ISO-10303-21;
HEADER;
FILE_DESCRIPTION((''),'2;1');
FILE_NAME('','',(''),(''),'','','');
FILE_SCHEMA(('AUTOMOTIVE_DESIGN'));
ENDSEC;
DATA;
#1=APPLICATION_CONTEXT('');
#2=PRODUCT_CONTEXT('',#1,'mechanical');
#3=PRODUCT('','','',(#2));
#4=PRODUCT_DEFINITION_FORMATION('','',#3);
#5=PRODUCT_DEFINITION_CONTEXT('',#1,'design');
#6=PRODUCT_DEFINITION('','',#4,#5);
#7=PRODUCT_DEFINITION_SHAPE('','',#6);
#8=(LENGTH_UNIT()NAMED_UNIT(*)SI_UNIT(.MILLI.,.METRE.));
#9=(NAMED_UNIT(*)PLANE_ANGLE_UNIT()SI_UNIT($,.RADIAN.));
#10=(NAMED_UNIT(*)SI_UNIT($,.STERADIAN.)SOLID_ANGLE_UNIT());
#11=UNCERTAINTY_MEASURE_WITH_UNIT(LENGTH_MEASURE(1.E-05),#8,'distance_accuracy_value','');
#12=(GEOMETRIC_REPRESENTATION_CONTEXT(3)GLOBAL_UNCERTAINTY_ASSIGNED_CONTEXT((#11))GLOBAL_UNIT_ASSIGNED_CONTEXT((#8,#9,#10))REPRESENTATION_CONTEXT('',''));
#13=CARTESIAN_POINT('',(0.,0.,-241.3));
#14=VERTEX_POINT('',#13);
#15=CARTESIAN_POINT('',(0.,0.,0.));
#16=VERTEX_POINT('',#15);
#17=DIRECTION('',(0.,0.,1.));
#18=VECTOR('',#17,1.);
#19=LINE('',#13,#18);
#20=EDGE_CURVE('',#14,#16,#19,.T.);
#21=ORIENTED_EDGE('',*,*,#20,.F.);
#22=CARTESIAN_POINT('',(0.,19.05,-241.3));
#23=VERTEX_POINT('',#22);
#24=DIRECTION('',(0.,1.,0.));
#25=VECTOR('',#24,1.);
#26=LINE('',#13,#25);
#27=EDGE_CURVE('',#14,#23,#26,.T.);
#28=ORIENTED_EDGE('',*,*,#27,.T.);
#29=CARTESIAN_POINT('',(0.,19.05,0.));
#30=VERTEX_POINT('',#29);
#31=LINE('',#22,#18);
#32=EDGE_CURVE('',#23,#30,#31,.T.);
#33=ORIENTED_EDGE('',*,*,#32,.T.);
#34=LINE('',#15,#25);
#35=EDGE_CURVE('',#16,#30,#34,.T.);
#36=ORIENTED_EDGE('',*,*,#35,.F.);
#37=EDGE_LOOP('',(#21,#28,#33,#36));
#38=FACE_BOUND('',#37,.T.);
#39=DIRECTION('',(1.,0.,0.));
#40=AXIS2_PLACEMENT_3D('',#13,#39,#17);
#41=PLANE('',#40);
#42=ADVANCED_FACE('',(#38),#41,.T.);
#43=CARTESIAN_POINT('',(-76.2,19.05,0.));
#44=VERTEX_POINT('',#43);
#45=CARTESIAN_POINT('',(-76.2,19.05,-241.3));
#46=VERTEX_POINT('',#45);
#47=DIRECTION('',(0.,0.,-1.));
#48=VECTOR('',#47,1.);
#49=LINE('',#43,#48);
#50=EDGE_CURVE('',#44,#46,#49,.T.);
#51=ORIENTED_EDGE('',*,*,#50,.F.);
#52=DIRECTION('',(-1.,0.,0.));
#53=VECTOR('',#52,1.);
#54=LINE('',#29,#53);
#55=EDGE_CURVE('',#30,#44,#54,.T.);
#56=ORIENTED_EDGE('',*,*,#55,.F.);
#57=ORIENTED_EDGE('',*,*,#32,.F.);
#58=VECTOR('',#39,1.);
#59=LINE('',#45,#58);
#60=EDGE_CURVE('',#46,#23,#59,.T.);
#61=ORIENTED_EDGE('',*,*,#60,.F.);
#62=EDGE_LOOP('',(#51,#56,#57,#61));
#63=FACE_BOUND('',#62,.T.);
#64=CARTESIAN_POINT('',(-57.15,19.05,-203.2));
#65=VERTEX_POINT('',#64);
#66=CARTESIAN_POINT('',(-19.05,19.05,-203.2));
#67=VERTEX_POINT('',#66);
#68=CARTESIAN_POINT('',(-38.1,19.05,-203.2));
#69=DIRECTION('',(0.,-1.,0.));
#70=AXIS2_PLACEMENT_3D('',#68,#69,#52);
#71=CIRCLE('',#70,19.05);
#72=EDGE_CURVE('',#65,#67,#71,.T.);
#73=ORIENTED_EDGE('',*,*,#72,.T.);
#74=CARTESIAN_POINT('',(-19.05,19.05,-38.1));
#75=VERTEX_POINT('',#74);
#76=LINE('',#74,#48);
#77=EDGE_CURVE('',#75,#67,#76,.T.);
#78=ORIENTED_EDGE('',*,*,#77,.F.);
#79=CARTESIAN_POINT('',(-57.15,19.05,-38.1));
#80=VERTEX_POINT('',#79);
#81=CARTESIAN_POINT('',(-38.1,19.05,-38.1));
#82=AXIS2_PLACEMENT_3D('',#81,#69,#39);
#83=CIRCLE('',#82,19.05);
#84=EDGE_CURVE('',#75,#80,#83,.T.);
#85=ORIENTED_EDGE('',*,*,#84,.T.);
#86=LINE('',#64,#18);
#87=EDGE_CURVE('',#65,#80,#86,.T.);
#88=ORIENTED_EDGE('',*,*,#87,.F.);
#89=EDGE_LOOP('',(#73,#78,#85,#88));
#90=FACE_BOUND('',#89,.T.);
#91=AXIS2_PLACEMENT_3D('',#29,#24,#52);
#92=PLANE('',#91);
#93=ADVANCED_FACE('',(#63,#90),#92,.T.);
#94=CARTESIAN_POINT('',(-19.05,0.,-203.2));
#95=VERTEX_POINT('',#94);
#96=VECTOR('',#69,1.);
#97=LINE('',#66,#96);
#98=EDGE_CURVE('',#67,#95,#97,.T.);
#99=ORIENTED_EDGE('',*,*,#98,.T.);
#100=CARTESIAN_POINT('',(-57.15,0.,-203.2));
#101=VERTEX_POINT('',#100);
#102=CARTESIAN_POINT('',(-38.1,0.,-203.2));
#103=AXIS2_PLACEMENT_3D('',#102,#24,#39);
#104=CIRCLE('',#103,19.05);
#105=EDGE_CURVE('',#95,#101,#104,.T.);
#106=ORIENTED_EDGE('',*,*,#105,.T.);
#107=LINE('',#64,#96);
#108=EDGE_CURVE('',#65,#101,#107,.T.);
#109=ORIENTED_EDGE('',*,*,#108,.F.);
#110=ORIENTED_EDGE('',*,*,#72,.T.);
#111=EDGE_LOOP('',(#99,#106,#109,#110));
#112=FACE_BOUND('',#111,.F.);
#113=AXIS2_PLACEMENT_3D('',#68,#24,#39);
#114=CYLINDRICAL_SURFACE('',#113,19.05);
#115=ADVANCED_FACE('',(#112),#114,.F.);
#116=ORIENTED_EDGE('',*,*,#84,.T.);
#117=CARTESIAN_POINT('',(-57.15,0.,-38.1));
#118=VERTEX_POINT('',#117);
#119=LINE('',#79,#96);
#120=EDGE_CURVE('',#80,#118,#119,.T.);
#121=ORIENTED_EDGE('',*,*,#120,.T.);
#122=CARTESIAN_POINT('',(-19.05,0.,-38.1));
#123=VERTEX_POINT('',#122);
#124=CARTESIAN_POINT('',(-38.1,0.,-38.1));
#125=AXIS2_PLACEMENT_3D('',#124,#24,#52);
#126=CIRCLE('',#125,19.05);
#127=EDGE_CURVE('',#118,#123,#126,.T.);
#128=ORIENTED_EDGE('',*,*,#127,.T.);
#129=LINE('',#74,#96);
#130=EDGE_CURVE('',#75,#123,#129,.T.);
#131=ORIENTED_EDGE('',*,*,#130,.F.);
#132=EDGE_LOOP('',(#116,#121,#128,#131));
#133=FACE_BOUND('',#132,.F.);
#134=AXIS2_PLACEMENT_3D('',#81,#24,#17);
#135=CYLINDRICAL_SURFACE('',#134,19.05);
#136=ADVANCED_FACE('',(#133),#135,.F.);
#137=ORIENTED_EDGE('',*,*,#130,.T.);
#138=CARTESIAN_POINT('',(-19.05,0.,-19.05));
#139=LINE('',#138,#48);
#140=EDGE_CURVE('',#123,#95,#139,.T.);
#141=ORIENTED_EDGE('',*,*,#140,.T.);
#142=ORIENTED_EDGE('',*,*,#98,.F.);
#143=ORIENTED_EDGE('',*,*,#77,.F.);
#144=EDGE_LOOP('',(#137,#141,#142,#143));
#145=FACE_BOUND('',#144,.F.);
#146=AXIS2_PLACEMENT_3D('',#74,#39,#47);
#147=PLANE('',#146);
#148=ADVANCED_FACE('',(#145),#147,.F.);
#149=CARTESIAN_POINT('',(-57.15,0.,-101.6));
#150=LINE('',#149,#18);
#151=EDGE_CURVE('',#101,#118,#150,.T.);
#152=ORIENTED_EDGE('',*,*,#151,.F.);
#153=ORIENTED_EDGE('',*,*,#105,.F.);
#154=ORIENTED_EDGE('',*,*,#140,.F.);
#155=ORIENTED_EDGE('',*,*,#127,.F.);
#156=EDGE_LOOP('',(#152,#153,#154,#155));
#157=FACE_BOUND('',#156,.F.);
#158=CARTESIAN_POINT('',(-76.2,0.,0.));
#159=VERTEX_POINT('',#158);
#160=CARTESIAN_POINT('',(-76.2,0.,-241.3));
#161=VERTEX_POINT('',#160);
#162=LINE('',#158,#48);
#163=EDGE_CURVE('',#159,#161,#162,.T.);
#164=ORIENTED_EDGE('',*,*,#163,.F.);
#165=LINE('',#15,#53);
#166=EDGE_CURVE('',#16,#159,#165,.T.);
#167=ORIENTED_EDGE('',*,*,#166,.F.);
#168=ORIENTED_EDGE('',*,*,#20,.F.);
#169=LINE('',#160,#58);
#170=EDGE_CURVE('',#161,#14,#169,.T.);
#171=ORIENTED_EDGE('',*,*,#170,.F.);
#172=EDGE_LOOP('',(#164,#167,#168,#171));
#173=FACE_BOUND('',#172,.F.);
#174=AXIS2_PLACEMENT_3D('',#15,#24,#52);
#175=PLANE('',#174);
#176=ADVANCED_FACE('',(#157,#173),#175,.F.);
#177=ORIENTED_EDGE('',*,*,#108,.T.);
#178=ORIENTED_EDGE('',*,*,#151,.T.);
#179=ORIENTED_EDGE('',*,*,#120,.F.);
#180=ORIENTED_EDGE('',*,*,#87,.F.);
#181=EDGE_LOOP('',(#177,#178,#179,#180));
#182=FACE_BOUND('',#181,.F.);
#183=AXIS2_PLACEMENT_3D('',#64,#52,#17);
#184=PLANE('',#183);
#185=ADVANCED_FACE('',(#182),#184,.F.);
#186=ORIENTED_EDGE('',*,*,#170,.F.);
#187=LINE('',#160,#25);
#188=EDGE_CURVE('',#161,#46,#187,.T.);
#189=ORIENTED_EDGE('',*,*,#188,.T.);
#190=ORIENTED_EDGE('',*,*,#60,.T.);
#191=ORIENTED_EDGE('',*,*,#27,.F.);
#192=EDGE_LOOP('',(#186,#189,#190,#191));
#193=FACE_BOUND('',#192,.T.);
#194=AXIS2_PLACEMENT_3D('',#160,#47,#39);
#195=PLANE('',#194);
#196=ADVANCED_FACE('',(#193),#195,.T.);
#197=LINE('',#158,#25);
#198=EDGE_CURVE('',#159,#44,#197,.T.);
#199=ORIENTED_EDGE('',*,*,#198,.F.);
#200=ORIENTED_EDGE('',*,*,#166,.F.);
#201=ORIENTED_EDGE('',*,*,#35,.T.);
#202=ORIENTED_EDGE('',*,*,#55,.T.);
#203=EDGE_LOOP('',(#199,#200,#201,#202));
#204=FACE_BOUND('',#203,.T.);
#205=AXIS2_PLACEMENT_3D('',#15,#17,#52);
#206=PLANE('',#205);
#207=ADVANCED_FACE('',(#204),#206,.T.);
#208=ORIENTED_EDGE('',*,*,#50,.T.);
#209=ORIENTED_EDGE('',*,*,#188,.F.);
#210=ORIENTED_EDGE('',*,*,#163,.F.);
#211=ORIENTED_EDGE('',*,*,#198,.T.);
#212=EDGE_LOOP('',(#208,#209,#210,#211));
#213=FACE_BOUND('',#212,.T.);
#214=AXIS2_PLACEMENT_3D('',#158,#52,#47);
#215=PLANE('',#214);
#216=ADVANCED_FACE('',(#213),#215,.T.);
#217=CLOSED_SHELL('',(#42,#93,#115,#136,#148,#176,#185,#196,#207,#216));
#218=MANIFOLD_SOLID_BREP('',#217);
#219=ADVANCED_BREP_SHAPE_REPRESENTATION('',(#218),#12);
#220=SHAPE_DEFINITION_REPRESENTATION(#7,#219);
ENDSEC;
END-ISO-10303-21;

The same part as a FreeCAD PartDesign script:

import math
import FreeCAD as App
import Part
import Sketcher
Q = App.Units.Quantity


def add_polygon(sketch, points):
    """Adds a closed chain of lines whose ends are joined by coincident constraints."""
    first, n = sketch.GeometryCount, len(points)
    for a, b in zip(points, points[1:] + points[:1]):
        sketch.addGeometry(Part.LineSegment(App.Vector(*a, 0), App.Vector(*b, 0)), False)
    for i in range(n):
        sketch.addConstraint(Sketcher.Constraint("Coincident", first + i, 2, first + (i + 1) % n, 1))

doc = App.newDocument("Part")
body = doc.addObject("PartDesign::Body", "Body")

# Sketch on XZ plane
sketch1 = body.newObject("Sketcher::SketchObject", "Sketch")
sketch1.AttachmentSupport = (doc.getObject("XZ_Plane"), [""])
sketch1.MapMode = "FlatFace"
add_polygon(sketch1, [(-76.2, 0), (0, 0), (0, -241.3), (-76.2, -241.3)])  # lines 0-3
sketch1.addConstraint([
    Sketcher.Constraint("Horizontal", 0),
    Sketcher.Constraint("Vertical", 1),
    Sketcher.Constraint("Horizontal", 2),
    Sketcher.Constraint("Vertical", 3),
    Sketcher.Constraint("Coincident", 0, 2, -1, 1),
    Sketcher.Constraint("DistanceX", 0, 1, 0, 2, Q("3 in")),
    Sketcher.Constraint("DistanceY", 1, 2, 1, 1, Q("9.5 in")),
])
pad1 = body.newObject("PartDesign::Pad", "Pad")
pad1.Profile = sketch1
pad1.Length = Q("0.75 in")
pad1.Reversed = True

# Sketch on XZ plane
sketch2 = body.newObject("Sketcher::SketchObject", "Sketch001")
sketch2.AttachmentSupport = (doc.getObject("XZ_Plane"), [""])
sketch2.MapMode = "FlatFace"
sketch2.AttachmentOffset = App.Placement(App.Vector(0, 0, -0.75 * 25.4), App.Rotation())
sketch2.addGeometry([
    Part.ArcOfCircle(Part.Circle(App.Vector(-38.1, -38.1, 0), App.Vector(0, 0, 1), 19.05), math.radians(0), math.radians(180)),
    Part.LineSegment(App.Vector(-19.05, -38.1, 0), App.Vector(-19.05, -203.2, 0)),
    Part.ArcOfCircle(Part.Circle(App.Vector(-38.1, -203.2, 0), App.Vector(0, 0, 1), 19.05), math.radians(180), math.radians(360)),
    Part.LineSegment(App.Vector(-57.15, -203.2, 0), App.Vector(-57.15, -38.1, 0)),
], False)
sketch2.addConstraint([
    Sketcher.Constraint("Tangent", 0, 1, 1, 1),
    Sketcher.Constraint("Tangent", 1, 2, 2, 2),
    Sketcher.Constraint("Tangent", 2, 1, 3, 1),
    Sketcher.Constraint("Tangent", 3, 2, 0, 2),
    Sketcher.Constraint("Vertical", 1),
    Sketcher.Constraint("Vertical", 3),
    Sketcher.Constraint("Radius", 0, Q("0.75 in")),
    Sketcher.Constraint("DistanceX", 0, 1, -1, 1, Q("0.75 in")),
    Sketcher.Constraint("DistanceY", 1, 2, 1, 1, Q("6.5 in")),
    Sketcher.Constraint("DistanceY", 2, 3, -1, 1, Q("8 in")),
])
pocket1 = body.newObject("PartDesign::Pocket", "Pocket")
pocket1.Profile = sketch2
pocket1.Length = Q("1 in")
pocket1.Reversed = True

doc.recompute()
